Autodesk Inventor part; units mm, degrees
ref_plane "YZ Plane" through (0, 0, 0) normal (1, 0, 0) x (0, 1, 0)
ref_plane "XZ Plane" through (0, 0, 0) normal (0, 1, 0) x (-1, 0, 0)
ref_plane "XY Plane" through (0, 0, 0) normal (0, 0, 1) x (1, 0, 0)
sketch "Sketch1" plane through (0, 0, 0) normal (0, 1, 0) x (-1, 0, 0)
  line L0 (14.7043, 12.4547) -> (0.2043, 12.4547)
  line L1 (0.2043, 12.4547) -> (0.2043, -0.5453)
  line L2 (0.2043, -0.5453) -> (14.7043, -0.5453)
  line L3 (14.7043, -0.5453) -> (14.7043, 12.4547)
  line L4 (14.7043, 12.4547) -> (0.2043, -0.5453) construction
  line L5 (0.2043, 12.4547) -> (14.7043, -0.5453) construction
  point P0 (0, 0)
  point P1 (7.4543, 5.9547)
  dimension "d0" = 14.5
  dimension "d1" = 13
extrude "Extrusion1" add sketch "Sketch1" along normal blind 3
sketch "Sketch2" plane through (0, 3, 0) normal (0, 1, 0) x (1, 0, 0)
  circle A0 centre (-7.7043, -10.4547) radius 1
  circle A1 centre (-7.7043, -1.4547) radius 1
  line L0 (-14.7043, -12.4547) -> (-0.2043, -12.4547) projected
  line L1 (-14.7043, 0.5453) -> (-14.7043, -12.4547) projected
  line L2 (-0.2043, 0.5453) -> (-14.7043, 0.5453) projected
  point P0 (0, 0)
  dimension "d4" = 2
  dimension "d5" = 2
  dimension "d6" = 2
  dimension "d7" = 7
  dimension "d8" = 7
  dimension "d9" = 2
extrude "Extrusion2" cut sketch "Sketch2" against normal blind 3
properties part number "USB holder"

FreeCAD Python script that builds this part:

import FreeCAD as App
import Part
import Sketcher

doc = App.newDocument("Part")
body = doc.addObject("PartDesign::Body", "Body")

sketch1 = body.newObject("Sketcher::SketchObject", "Sketch")
sketch1.AttachmentSupport = (doc.getObject("XZ_Plane"), [""])
sketch1.MapMode = "FlatFace"
sketch1.addGeometry([
    Part.LineSegment(App.Vector(-15, -1, 0), App.Vector(-15, 12, 0)),
    Part.LineSegment(App.Vector(-15, 12, 0), App.Vector(0, 12, 0)),
    Part.LineSegment(App.Vector(0, 12, 0), App.Vector(0, -1, 0)),
    Part.LineSegment(App.Vector(0, -1, 0), App.Vector(-15, -1, 0)),
], False)
sketch1.addConstraint([
    Sketcher.Constraint("Coincident", 0, 2, 1, 1),
    Sketcher.Constraint("Coincident", 1, 2, 2, 1),
    Sketcher.Constraint("Coincident", 2, 2, 3, 1),
    Sketcher.Constraint("Coincident", 3, 2, 0, 1),
    Sketcher.Constraint("Vertical", 0),
    Sketcher.Constraint("Horizontal", 1),
    Sketcher.Constraint("Vertical", 2),
    Sketcher.Constraint("Horizontal", 3),
    Sketcher.Constraint("DistanceY", 0, 1, 0, 2, 13.0),
    Sketcher.Constraint("DistanceX", 1, 1, 1, 2, 14.5),
    Sketcher.Constraint("DistanceX", 0, 2, -1, 1, 14.7043),
    Sketcher.Constraint("DistanceY", -1, 1, 0, 2, 12.4547),
])
pad1 = body.newObject("PartDesign::Pad", "Pad")
pad1.Profile = sketch1
pad1.Length = 3
pad1.Reversed = True

sketch2 = body.newObject("Sketcher::SketchObject", "Sketch001")
sketch2.AttachmentSupport = (doc.getObject("XZ_Plane"), [""])
sketch2.MapMode = "FlatFace"
sketch2.AttachmentOffset = App.Placement(App.Vector(0, 0, -3), App.Rotation())
sketch2.addGeometry([
    Part.Circle(App.Vector(-7.7, 10.5, 0), App.Vector(0, 0, 1), 1),
    Part.Circle(App.Vector(-7.7, 1.5, 0), App.Vector(0, 0, 1), 1),
], False)
sketch2.addConstraint([
    Sketcher.Constraint("Equal", 0, 1),
    Sketcher.Constraint("Vertical", 0, 3, 1, 3),
    Sketcher.Constraint("Diameter", 0, 2.0),
    Sketcher.Constraint("DistanceY", 1, 3, 0, 3, 9.0),
    Sketcher.Constraint("DistanceX", 0, 3, -1, 1, 7.7043),
    Sketcher.Constraint("DistanceY", -1, 1, 0, 3, 10.4547),
])
pocket1 = body.newObject("PartDesign::Pocket", "Pocket")
pocket1.Profile = sketch2
pocket1.Length = 3
pocket1.Reversed = True

doc.recompute()
